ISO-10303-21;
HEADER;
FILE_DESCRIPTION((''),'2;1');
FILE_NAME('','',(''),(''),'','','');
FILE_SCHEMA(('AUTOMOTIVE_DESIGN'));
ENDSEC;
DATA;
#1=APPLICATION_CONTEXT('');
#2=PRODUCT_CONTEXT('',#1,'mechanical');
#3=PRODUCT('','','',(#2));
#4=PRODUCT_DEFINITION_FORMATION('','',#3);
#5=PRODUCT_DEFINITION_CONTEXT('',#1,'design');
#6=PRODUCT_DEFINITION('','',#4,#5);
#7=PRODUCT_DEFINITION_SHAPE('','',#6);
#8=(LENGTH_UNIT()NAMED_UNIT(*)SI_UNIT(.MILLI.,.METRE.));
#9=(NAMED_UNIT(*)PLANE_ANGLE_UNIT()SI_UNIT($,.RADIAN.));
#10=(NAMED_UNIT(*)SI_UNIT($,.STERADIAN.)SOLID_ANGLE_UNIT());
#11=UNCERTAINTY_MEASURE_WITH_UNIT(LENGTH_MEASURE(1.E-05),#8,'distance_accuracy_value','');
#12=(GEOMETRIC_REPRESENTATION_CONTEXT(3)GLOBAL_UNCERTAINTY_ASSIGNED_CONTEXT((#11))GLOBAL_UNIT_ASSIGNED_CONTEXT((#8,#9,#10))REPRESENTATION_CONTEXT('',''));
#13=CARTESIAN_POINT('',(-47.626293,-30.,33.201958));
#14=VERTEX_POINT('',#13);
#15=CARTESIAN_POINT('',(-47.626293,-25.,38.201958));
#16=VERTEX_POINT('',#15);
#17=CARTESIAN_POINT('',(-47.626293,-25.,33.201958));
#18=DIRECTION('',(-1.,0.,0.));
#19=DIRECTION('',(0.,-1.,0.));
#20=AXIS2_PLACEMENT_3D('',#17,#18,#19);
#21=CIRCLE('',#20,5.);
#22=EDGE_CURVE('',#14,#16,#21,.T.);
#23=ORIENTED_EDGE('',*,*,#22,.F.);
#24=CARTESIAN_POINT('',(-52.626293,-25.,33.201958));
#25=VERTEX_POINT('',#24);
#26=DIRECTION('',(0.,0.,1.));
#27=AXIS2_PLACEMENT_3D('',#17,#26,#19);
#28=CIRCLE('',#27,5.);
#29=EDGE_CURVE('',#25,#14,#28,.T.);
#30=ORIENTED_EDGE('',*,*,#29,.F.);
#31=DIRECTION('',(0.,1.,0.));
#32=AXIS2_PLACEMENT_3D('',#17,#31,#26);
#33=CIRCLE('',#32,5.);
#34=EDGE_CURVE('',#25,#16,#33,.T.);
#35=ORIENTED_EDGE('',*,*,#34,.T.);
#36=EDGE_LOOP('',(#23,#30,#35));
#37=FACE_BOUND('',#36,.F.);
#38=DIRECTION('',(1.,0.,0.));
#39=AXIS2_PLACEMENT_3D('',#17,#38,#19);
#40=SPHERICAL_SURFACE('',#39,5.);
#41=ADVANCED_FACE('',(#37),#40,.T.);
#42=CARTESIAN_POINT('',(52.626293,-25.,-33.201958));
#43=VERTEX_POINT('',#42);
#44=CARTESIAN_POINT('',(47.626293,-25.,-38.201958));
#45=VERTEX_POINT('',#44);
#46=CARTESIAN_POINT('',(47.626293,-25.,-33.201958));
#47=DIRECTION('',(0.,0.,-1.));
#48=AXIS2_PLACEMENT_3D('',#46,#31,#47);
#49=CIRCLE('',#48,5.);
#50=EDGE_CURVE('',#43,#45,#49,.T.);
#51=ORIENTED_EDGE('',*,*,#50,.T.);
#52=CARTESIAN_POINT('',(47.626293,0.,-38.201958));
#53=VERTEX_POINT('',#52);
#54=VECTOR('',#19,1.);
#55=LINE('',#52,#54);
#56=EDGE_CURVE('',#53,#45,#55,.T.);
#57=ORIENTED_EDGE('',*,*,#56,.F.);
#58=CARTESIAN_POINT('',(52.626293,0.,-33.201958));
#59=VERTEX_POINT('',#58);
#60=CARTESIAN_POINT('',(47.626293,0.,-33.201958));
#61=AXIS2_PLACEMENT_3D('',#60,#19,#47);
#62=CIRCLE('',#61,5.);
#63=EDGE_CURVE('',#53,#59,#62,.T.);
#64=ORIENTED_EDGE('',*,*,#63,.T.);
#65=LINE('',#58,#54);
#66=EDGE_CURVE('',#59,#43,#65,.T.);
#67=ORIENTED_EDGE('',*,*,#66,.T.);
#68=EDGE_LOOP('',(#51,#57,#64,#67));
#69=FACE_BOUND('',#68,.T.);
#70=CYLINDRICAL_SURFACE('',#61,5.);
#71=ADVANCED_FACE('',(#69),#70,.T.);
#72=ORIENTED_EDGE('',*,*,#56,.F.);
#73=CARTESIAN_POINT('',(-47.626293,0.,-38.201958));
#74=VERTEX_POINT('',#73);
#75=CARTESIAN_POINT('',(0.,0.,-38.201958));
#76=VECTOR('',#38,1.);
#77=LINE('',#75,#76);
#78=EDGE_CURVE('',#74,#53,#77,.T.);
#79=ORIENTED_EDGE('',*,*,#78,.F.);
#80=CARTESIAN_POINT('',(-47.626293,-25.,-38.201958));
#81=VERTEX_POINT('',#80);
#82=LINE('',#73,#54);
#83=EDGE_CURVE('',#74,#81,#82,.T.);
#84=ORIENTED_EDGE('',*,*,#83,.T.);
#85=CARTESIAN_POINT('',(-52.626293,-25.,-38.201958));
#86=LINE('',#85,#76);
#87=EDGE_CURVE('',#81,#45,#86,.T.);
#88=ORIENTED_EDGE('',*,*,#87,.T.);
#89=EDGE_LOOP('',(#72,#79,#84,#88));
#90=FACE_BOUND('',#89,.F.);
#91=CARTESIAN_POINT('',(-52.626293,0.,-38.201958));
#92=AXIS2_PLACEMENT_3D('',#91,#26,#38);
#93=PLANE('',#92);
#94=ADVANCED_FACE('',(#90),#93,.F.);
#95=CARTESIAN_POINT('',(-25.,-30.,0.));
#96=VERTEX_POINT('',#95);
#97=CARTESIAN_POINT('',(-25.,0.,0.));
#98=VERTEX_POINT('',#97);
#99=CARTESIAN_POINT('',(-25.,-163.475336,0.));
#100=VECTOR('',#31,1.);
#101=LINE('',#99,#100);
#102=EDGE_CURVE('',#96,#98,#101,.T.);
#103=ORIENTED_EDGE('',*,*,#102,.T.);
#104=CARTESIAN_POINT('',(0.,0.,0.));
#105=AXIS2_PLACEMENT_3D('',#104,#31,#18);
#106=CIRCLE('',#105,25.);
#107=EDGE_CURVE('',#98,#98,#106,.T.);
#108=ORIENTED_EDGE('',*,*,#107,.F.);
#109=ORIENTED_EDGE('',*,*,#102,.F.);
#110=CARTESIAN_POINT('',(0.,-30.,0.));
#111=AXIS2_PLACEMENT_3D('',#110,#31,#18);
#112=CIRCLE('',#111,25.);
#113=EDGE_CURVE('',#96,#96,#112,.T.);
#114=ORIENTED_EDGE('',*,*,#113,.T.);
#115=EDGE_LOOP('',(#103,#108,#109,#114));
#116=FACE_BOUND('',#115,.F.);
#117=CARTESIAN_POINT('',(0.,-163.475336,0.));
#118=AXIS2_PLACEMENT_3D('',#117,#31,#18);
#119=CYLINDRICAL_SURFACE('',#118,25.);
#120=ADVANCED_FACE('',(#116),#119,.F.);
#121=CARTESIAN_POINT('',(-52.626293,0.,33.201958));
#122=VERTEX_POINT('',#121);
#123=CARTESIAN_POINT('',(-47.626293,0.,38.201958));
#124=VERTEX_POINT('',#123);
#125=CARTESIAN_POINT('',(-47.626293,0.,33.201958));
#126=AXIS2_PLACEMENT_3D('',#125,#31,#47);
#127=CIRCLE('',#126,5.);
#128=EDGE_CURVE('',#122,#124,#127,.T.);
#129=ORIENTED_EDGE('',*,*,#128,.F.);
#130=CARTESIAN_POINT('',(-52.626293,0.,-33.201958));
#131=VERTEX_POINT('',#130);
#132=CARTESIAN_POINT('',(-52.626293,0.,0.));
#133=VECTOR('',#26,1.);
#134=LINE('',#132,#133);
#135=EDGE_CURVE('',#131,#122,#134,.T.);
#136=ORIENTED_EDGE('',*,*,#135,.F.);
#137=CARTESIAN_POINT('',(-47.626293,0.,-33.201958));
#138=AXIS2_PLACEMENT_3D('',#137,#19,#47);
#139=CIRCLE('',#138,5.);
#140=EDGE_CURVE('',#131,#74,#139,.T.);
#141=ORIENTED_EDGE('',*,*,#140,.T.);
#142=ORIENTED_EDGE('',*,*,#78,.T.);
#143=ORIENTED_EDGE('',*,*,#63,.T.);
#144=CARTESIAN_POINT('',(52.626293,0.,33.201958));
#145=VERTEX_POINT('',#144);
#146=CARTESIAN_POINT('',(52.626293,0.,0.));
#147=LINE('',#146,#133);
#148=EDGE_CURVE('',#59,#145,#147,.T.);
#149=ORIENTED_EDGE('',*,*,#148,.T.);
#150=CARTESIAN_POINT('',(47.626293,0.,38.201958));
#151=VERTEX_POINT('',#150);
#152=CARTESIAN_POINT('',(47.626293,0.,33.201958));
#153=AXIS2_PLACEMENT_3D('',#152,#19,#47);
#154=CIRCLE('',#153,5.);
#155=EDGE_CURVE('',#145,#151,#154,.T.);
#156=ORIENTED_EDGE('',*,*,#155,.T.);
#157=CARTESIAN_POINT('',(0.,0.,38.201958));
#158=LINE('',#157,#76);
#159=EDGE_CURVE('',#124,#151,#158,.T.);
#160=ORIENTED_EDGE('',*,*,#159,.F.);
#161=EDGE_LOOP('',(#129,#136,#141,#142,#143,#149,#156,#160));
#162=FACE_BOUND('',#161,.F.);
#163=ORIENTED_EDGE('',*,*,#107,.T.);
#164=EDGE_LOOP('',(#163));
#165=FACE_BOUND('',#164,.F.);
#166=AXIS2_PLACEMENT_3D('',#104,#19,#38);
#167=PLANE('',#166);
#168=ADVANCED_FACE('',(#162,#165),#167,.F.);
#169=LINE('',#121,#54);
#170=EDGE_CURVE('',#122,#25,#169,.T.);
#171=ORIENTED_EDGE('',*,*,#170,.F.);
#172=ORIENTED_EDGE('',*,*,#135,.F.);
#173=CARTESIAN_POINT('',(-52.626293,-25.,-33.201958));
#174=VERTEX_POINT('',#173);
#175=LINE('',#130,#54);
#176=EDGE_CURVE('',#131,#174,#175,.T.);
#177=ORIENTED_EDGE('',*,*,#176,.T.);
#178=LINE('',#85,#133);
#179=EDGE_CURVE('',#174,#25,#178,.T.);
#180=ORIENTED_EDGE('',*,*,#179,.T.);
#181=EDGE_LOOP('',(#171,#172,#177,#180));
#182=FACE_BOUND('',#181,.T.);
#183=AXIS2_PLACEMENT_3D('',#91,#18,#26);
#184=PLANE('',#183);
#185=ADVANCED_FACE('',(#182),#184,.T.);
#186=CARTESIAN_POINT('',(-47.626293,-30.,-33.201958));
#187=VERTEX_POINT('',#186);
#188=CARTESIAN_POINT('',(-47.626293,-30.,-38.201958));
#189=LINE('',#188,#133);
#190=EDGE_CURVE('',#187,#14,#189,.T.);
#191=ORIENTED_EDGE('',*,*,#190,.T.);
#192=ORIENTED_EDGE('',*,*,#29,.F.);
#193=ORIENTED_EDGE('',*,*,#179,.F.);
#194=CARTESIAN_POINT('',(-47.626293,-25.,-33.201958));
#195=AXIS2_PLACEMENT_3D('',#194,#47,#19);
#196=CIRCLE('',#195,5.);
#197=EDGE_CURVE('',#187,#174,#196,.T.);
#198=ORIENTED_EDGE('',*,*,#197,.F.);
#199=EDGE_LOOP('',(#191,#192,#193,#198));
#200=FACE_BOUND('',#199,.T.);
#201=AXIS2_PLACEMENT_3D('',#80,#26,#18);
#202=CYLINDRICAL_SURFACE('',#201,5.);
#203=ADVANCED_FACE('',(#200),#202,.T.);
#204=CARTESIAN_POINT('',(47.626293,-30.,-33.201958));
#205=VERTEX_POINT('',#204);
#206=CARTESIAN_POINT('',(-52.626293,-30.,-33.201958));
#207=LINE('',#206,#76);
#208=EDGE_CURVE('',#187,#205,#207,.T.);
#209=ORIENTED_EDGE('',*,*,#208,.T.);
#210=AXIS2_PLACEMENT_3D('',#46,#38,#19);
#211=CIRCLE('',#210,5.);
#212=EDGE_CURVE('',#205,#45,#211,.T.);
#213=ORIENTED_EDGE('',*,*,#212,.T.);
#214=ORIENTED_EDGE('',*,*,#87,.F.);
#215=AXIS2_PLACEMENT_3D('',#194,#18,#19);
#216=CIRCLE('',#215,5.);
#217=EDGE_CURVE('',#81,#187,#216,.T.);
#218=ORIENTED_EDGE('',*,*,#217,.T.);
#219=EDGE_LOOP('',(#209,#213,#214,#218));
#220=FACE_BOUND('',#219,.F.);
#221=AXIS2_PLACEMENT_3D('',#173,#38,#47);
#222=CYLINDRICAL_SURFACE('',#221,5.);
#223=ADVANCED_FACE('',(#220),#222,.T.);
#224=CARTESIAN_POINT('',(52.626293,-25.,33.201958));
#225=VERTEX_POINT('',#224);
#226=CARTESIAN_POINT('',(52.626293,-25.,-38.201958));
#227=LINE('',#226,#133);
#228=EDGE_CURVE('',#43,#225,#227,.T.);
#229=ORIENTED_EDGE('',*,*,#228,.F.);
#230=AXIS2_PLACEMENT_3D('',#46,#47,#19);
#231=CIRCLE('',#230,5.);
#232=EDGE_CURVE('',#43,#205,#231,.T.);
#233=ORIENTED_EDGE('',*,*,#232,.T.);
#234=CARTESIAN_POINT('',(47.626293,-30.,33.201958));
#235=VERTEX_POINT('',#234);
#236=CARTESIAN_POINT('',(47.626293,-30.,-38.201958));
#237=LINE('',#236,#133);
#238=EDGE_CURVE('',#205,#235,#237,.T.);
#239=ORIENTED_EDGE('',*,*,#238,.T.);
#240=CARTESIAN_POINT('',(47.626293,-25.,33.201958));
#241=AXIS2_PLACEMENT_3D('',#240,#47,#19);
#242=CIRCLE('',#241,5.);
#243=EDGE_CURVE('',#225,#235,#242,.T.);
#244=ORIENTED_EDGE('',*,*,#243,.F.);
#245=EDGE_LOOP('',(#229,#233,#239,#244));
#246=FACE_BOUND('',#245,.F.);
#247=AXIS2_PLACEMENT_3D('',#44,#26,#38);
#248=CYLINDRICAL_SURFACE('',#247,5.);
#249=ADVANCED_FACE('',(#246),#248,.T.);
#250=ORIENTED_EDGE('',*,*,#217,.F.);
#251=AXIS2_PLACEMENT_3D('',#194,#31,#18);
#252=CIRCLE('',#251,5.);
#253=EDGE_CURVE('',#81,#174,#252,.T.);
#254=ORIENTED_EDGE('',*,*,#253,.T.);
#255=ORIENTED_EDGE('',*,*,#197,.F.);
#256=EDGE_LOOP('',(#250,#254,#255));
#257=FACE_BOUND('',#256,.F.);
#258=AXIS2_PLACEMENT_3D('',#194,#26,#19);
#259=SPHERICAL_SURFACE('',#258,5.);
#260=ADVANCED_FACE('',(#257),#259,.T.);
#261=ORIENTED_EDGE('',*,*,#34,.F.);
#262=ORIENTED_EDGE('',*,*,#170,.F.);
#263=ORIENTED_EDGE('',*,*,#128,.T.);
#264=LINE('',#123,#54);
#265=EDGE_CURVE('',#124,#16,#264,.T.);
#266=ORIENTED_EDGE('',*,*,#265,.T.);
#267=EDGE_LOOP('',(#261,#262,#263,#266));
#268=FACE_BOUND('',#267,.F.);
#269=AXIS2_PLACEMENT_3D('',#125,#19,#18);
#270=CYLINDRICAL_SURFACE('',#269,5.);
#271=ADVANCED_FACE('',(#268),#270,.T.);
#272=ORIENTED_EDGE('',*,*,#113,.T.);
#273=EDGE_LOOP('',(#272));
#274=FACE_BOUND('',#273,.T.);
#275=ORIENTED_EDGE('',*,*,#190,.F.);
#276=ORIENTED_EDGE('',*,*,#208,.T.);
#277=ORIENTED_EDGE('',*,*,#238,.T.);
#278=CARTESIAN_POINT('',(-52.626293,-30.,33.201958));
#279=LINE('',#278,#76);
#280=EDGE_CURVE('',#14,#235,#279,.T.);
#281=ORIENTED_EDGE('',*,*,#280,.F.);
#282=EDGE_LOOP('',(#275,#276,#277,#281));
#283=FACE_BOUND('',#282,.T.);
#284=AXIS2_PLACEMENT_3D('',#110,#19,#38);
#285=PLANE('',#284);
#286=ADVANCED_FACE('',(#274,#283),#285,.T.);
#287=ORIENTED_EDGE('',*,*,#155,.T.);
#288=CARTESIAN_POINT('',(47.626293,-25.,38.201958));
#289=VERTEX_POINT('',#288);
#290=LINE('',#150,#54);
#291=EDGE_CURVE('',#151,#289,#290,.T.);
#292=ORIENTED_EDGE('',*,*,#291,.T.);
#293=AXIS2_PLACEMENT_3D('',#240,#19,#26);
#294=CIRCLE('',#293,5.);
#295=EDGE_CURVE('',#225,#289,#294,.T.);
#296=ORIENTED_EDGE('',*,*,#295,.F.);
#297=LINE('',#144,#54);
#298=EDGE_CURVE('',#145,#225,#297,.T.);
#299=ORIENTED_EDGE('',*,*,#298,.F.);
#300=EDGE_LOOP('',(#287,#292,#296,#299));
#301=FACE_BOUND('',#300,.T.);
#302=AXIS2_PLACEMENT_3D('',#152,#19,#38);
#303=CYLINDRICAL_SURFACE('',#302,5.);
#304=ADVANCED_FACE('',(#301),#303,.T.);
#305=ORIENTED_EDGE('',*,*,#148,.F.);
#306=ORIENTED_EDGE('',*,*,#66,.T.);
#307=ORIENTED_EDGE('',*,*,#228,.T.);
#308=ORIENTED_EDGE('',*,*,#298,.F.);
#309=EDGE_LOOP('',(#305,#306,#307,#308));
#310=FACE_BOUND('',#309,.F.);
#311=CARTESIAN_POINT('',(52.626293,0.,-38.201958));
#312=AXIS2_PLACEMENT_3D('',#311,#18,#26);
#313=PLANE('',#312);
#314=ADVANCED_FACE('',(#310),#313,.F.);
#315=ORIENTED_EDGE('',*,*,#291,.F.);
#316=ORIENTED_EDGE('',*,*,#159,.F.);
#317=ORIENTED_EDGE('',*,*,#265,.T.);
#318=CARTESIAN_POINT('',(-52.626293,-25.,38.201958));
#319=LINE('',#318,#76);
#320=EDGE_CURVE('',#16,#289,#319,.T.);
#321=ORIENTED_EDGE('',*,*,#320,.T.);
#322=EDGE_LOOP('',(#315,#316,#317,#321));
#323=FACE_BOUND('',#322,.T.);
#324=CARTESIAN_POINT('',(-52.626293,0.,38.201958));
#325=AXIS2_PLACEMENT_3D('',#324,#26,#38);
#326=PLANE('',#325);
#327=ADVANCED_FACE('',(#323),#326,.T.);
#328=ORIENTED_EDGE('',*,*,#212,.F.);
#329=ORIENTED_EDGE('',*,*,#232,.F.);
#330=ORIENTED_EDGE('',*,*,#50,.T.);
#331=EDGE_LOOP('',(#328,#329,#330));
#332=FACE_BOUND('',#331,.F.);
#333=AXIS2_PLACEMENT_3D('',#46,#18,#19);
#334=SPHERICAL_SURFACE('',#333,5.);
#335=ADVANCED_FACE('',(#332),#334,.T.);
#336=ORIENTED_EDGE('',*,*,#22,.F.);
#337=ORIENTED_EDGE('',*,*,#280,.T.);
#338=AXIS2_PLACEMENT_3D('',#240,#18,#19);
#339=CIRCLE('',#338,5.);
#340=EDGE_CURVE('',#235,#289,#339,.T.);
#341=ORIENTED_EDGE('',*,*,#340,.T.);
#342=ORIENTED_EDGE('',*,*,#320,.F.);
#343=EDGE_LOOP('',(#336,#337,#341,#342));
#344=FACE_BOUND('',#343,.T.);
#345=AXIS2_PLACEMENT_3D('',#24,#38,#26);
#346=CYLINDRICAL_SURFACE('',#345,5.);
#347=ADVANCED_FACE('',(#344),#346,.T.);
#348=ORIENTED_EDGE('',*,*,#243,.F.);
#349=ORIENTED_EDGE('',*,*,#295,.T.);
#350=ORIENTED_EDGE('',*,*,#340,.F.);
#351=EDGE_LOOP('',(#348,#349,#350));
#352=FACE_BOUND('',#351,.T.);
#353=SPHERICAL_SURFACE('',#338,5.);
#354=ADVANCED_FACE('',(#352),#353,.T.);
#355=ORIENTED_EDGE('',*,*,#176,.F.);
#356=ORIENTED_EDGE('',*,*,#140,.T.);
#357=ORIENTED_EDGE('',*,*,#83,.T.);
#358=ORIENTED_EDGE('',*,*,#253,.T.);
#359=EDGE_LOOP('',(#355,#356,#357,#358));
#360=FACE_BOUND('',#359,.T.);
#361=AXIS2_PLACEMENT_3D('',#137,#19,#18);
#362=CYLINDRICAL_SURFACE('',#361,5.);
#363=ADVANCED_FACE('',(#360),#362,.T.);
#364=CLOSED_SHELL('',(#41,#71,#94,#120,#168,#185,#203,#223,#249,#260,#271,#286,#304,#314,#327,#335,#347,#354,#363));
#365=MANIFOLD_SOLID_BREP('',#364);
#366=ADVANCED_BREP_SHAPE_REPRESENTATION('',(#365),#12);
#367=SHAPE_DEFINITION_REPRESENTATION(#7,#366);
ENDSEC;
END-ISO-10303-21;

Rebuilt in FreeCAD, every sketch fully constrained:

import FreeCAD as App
import Part
import Sketcher
from FreeCAD import Vector


def edges_at(feature, points):
    """Names of the edges that pass closest to the given points."""
    edges = feature.Shape.Edges
    near = lambda p: min(range(len(edges)), key=lambda i: edges[i].distToShape(Part.Vertex(*p))[0])
    return sorted({f"Edge{near(p) + 1}" for p in points})

doc = App.newDocument("Part")
body = doc.addObject("PartDesign::Body", "Body")

sketch1 = body.newObject("Sketcher::SketchObject", "Sketch")
sketch1.AttachmentSupport = (doc.getObject("XZ_Plane"), [""])
sketch1.MapMode = "FlatFace"
sketch1.addGeometry(Part.LineSegment(Vector(-53, 38, 0), Vector(-53, -38, 0)), False)
sketch1.addGeometry(Part.LineSegment(Vector(-53, -38, 0), Vector(53, -38, 0)), False)
sketch1.addGeometry(Part.LineSegment(Vector(53, -38, 0), Vector(53, 38, 0)), False)
sketch1.addGeometry(Part.LineSegment(Vector(53, 38, 0), Vector(-53, 38, 0)), False)
sketch1.addConstraint(Sketcher.Constraint("Coincident", 0, 2, 1, 1))
sketch1.addConstraint(Sketcher.Constraint("Coincident", 1, 2, 2, 1))
sketch1.addConstraint(Sketcher.Constraint("Coincident", 2, 2, 3, 1))
sketch1.addConstraint(Sketcher.Constraint("Coincident", 3, 2, 0, 1))
sketch1.addConstraint(Sketcher.Constraint("Vertical", 0))
sketch1.addConstraint(Sketcher.Constraint("Horizontal", 1))
sketch1.addConstraint(Sketcher.Constraint("Vertical", 2))
sketch1.addConstraint(Sketcher.Constraint("Horizontal", 3))
sketch1.addConstraint(Sketcher.Constraint("Symmetric", 0, 2, 2, 2, -1, 1))
sketch1.addConstraint(Sketcher.Constraint("DistanceX", 1, 1, 1, 2, 105.252586))
sketch1.addConstraint(Sketcher.Constraint("DistanceY", 0, 2, 0, 1, 76.403916))
pad1 = body.newObject("PartDesign::Pad", "Pad")
pad1.Profile = sketch1
pad1.Length = 30
doc.recompute()

fillet = body.newObject("PartDesign::Fillet", "Fillet")
fillet.Base = (pad1, edges_at(pad1, [
    (0, -30, 38.202),
    (-52.626, -30, 0),
    (0, -30, -38.202),
    (52.626, -30, 0),
    (-52.626, -15, 38.202),
    (-52.626, -15, -38.202),
    (52.626, -15, 38.202),
    (52.626, -15, -38.202),
]))
fillet.Radius = 5

sketch2 = body.newObject("Sketcher::SketchObject", "Sketch001")
sketch2.AttachmentSupport = (doc.getObject("XZ_Plane"), [""])
sketch2.MapMode = "FlatFace"
sketch2.AttachmentOffset = App.Placement(Vector(0, 0, 30), App.Rotation())
sketch2.addGeometry(Part.Circle(Vector(0, 0, 0), Vector(0, 0, 1), 25), False)
sketch2.addConstraint(Sketcher.Constraint("Coincident", 0, 3, -1, 1))
sketch2.addConstraint(Sketcher.Constraint("Diameter", 0, 50.0))
doc.recompute()
hole = body.newObject("PartDesign::Hole", "Hole")
hole.Profile = sketch2
hole.ThreadType = "None"
hole.Diameter = 50
hole.DepthType = "ThroughAll"

doc.recompute()
